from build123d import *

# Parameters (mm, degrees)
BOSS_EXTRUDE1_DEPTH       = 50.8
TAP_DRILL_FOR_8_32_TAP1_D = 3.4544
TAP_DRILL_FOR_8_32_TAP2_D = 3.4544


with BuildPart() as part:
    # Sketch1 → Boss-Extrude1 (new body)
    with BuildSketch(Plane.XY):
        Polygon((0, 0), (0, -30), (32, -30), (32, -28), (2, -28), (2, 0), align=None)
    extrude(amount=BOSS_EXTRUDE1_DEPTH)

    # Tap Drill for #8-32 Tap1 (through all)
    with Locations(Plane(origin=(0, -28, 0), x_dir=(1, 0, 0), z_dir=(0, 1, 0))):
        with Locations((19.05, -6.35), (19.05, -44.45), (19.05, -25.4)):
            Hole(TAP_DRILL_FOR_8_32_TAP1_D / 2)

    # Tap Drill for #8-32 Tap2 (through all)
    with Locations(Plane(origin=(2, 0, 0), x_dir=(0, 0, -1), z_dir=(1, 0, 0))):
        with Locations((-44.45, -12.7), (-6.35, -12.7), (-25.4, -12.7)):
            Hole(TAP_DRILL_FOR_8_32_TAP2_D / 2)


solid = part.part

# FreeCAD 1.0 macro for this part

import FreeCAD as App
import Part
import Sketcher

V = App.Vector

doc = App.newDocument("Part")
body = doc.addObject("PartDesign::Body", "Body")

# Sketch on XY plane
sketch1 = body.newObject("Sketcher::SketchObject", "Sketch")
sketch1.AttachmentSupport = (doc.getObject("XY_Plane"), [""])
sketch1.MapMode = "FlatFace"
sketch1.addGeometry(Part.LineSegment(V(0, 0, 0), V(0, -30, 0)), False)
sketch1.addGeometry(Part.LineSegment(V(0, -30, 0), V(32, -30, 0)), False)
sketch1.addGeometry(Part.LineSegment(V(32, -30, 0), V(32, -28, 0)), False)
sketch1.addGeometry(Part.LineSegment(V(32, -28, 0), V(2, -28, 0)), False)
sketch1.addGeometry(Part.LineSegment(V(2, -28, 0), V(2, 0, 0)), False)
sketch1.addGeometry(Part.LineSegment(V(2, 0, 0), V(0, 0, 0)), False)
sketch1.addConstraint(Sketcher.Constraint("Coincident", 0, 2, 1, 1))
sketch1.addConstraint(Sketcher.Constraint("Coincident", 1, 2, 2, 1))
sketch1.addConstraint(Sketcher.Constraint("Coincident", 2, 2, 3, 1))
sketch1.addConstraint(Sketcher.Constraint("Coincident", 3, 2, 4, 1))
sketch1.addConstraint(Sketcher.Constraint("Coincident", 4, 2, 5, 1))
sketch1.addConstraint(Sketcher.Constraint("Coincident", 5, 2, 0, 1))
sketch1.addConstraint(Sketcher.Constraint("Vertical", 0))
sketch1.addConstraint(Sketcher.Constraint("Horizontal", 1))
sketch1.addConstraint(Sketcher.Constraint("Vertical", 2))
sketch1.addConstraint(Sketcher.Constraint("Horizontal", 3))
sketch1.addConstraint(Sketcher.Constraint("Vertical", 4))
sketch1.addConstraint(Sketcher.Constraint("Horizontal", 5))
sketch1.addConstraint(Sketcher.Constraint("Coincident", 5, 2, -1, 1))
sketch1.addConstraint(Sketcher.Constraint("Equal", 3, 0))
sketch1.addConstraint(Sketcher.Constraint("Equal", 5, 2))
sketch1.addConstraint(Sketcher.Constraint("DistanceX", 1, 1, 1, 2, 32.0))
sketch1.addConstraint(Sketcher.Constraint("DistanceX", 3, 2, 3, 1, 30.0))
pad1 = body.newObject("PartDesign::Pad", "Pad")
pad1.Profile = sketch1
pad1.Length = 50.8

# Sketch on XZ plane
sketch2 = body.newObject("Sketcher::SketchObject", "Sketch001")
sketch2.AttachmentSupport = (doc.getObject("XZ_Plane"), [""])
sketch2.MapMode = "FlatFace"
sketch2.AttachmentOffset = App.Placement(V(0, 0, 28), App.Rotation())
sketch2.addGeometry(Part.Circle(V(19.05, 6.35, 0), V(0, 0, 1), 1.7272), False)
sketch2.addGeometry(Part.Circle(V(19.05, 44.45, 0), V(0, 0, 1), 1.7272), False)
sketch2.addGeometry(Part.Circle(V(19.05, 25.4, 0), V(0, 0, 1), 1.7272), False)
sketch2.addConstraint(Sketcher.Constraint("Equal", 0, 1))
sketch2.addConstraint(Sketcher.Constraint("Equal", 1, 2))
sketch2.addConstraint(Sketcher.Constraint("Vertical", 0, 3, 1, 3))
sketch2.addConstraint(Sketcher.Constraint("Vertical", 1, 3, 2, 3))
sketch2.addConstraint(Sketcher.Constraint("Diameter", 0, 3.4544))
sketch2.addConstraint(Sketcher.Constraint("DistanceY", -1, 1, 2, 3, 25.4))
sketch2.addConstraint(Sketcher.Constraint("DistanceY", 0, 3, 1, 3, 38.1))
sketch2.addConstraint(Sketcher.Constraint("DistanceX", -1, 1, 0, 3, 19.05))
sketch2.addConstraint(Sketcher.Constraint("DistanceY", -1, 1, 0, 3, 6.35))
doc.recompute()
hole = body.newObject("PartDesign::Hole", "Hole")
hole.Profile = sketch2
hole.ThreadType = "None"
hole.Diameter = 3.4544
hole.DepthType = "ThroughAll"
hole.Reversed = True

# Sketch on YZ plane
sketch3 = body.newObject("Sketcher::SketchObject", "Sketch002")
sketch3.AttachmentSupport = (doc.getObject("YZ_Plane"), [""])
sketch3.MapMode = "FlatFace"
sketch3.AttachmentOffset = App.Placement(V(0, 0, 2), App.Rotation())
sketch3.addGeometry(Part.Circle(V(-12.7, 44.45, 0), V(0, 0, 1), 1.7272), False)
sketch3.addGeometry(Part.Circle(V(-12.7, 6.35, 0), V(0, 0, 1), 1.7272), False)
sketch3.addGeometry(Part.Circle(V(-12.7, 25.4, 0), V(0, 0, 1), 1.7272), False)
sketch3.addConstraint(Sketcher.Constraint("Equal", 0, 1))
sketch3.addConstraint(Sketcher.Constraint("Equal", 1, 2))
sketch3.addConstraint(Sketcher.Constraint("Vertical", 0, 3, 1, 3))
sketch3.addConstraint(Sketcher.Constraint("Vertical", 1, 3, 2, 3))
sketch3.addConstraint(Sketcher.Constraint("Diameter", 0, 3.4544))
sketch3.addConstraint(Sketcher.Constraint("DistanceX", 0, 3, -1, 1, 12.7))
sketch3.addConstraint(Sketcher.Constraint("DistanceY", -1, 1, 2, 3, 25.4))
sketch3.addConstraint(Sketcher.Constraint("DistanceY", 1, 3, 0, 3, 38.1))
sketch3.addConstraint(Sketcher.Constraint("DistanceY", -1, 1, 0, 3, 44.45))
doc.recompute()
hole2 = body.newObject("PartDesign::Hole", "Hole001")
hole2.Profile = sketch3
hole2.ThreadType = "None"
hole2.Diameter = 3.4544
hole2.DepthType = "ThroughAll"

doc.recompute()
